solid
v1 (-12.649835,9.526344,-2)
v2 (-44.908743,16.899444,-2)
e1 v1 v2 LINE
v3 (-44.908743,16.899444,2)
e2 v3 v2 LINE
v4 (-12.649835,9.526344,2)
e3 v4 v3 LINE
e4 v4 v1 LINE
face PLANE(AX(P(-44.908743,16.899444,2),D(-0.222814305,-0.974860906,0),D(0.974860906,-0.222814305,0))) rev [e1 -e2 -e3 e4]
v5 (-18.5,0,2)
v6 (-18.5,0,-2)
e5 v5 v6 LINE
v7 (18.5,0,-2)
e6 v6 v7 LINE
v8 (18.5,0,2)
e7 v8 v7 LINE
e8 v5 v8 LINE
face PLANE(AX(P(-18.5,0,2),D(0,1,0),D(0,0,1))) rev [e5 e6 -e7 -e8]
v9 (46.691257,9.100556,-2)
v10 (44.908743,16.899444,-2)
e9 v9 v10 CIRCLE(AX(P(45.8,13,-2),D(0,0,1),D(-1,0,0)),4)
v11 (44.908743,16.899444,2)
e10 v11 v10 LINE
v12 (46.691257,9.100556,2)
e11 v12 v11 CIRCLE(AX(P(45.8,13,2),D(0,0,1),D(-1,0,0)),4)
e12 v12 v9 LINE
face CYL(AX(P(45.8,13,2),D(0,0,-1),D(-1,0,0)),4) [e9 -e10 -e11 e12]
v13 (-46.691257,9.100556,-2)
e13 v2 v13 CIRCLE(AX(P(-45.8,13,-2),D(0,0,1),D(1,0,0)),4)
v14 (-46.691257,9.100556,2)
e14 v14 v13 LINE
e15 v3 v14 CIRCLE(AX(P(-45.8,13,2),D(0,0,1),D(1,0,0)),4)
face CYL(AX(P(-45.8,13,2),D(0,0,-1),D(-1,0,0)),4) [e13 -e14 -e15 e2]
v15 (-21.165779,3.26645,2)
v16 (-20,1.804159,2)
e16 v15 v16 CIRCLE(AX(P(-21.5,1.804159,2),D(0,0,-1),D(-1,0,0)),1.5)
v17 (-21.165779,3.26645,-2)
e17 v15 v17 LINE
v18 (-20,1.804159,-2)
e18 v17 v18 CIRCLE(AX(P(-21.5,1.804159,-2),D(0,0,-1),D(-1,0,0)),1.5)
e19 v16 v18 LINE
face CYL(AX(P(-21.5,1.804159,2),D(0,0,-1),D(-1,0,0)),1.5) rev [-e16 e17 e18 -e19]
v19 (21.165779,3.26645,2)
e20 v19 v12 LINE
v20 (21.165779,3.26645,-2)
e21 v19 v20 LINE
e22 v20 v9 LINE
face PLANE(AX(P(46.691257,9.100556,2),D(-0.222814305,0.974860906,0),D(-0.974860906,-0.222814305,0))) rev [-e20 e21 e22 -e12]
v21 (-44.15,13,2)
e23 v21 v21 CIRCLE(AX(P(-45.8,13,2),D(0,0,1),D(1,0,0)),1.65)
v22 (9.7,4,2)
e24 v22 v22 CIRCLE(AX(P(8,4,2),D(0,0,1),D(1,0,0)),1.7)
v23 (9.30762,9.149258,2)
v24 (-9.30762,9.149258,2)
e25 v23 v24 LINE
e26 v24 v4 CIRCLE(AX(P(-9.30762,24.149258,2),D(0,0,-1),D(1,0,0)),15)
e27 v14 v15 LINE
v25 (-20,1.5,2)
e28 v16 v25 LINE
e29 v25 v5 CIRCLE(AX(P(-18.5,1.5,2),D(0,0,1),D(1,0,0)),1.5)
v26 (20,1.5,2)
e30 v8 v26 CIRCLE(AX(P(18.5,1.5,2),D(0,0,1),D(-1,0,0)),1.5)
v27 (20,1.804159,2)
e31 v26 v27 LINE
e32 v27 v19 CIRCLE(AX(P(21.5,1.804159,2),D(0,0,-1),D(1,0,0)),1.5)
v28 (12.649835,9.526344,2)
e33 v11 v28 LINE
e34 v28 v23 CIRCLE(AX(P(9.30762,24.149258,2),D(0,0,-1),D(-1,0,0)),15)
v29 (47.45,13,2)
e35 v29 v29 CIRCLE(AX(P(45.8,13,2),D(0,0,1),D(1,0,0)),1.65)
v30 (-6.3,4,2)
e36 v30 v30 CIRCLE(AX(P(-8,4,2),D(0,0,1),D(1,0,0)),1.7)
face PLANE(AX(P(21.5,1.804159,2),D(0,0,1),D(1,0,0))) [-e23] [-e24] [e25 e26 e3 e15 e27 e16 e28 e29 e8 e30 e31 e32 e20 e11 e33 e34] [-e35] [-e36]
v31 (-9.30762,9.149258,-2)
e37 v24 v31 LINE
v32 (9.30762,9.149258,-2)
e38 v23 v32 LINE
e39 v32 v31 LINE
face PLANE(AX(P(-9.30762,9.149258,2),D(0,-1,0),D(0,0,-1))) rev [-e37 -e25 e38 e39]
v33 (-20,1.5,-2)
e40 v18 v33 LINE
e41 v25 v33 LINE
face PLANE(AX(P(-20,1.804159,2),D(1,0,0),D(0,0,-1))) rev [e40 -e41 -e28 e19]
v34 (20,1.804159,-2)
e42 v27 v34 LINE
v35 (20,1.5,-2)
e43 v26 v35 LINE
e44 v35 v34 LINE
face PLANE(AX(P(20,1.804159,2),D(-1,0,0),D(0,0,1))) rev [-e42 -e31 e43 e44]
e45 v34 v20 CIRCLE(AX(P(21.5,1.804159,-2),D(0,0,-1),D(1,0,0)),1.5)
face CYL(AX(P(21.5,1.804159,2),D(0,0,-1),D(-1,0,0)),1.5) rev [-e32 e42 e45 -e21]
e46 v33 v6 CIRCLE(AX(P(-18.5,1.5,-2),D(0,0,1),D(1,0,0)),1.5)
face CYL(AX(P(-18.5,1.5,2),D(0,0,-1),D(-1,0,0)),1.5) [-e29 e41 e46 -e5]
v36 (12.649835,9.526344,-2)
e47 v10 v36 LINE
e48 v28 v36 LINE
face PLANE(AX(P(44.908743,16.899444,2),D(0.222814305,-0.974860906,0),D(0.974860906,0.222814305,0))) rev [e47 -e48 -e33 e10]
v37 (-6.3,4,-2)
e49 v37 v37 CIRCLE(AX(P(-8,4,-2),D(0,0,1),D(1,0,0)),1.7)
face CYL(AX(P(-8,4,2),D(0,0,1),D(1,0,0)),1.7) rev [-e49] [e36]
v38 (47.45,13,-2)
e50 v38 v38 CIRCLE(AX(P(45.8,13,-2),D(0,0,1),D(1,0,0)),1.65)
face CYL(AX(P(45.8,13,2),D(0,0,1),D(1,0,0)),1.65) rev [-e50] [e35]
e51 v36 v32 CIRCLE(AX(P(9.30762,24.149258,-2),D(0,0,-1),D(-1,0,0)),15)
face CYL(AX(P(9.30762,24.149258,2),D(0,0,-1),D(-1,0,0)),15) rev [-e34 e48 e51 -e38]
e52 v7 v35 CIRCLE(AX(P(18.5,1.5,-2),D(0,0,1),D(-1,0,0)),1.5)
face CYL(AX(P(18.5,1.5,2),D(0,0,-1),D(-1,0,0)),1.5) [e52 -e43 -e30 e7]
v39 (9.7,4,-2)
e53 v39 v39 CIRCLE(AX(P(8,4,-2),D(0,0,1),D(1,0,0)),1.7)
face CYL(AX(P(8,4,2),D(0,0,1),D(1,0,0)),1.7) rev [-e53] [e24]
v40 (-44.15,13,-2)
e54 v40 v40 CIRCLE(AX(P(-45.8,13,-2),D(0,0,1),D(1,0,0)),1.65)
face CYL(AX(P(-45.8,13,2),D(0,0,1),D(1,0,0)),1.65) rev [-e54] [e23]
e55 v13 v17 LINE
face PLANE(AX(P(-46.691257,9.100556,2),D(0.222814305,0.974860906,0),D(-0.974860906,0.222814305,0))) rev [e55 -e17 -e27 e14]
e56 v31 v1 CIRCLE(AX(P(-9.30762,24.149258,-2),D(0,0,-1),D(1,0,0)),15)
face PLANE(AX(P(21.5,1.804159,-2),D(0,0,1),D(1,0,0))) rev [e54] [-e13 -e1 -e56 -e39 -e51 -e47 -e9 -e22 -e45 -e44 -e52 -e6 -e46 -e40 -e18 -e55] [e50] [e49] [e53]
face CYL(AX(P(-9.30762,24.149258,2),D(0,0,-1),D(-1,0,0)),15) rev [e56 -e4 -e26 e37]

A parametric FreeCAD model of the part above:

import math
import FreeCAD as App
import Part
import Sketcher
Q = App.Units.Quantity

doc = App.newDocument("Part")
body = doc.addObject("PartDesign::Body", "Body")

# Sketch on XY plane
sketch1 = body.newObject("Sketcher::SketchObject", "Sketch")
sketch1.AttachmentSupport = (doc.getObject("XY_Plane"), [""])
sketch1.MapMode = "FlatFace"
sketch1.addGeometry([
    Part.LineSegment(App.Vector(-18.5, 0, 0), App.Vector(18.5, 0, 0)),  # 0
    Part.ArcOfCircle(Part.Circle(App.Vector(18.5, 1.5, 0), App.Vector(0, 0, 1), 1.5), math.radians(-90), math.radians(0)),  # 1
    Part.LineSegment(App.Vector(20, 1.5, 0), App.Vector(20, 1.8, 0)),  # 2
    Part.ArcOfCircle(Part.Circle(App.Vector(21.5, 1.8, 0), App.Vector(0, 0, 1), 1.5), math.radians(103), math.radians(180)),  # 3
    Part.LineSegment(App.Vector(21.17, 3.27, 0), App.Vector(46.69, 9.1, 0)),  # 4
    Part.ArcOfCircle(Part.Circle(App.Vector(45.8, 13, 0), App.Vector(0, 0, 1), 4), math.radians(-77), math.radians(103)),  # 5
    Part.LineSegment(App.Vector(44.91, 16.9, 0), App.Vector(12.65, 9.53, 0)),  # 6
    Part.ArcOfCircle(Part.Circle(App.Vector(9.31, 24.15, 0), App.Vector(0, 0, 1), 15), math.radians(-90), math.radians(-77.13)),  # 7
    Part.LineSegment(App.Vector(9.31, 9.15, 0), App.Vector(-9.31, 9.15, 0)),  # 8
    Part.ArcOfCircle(Part.Circle(App.Vector(-9.31, 24.15, 0), App.Vector(0, 0, 1), 15), math.radians(-102.87), math.radians(-90)),  # 9
    Part.LineSegment(App.Vector(-12.65, 9.53, 0), App.Vector(-44.91, 16.9, 0)),  # 10
    Part.ArcOfCircle(Part.Circle(App.Vector(-45.8, 13, 0), App.Vector(0, 0, 1), 4), math.radians(77), math.radians(257)),  # 11
    Part.LineSegment(App.Vector(-46.69, 9.1, 0), App.Vector(-21.17, 3.27, 0)),  # 12
    Part.ArcOfCircle(Part.Circle(App.Vector(-21.5, 1.8, 0), App.Vector(0, 0, 1), 1.5), math.radians(0), math.radians(77)),  # 13
    Part.LineSegment(App.Vector(-20, 1.8, 0), App.Vector(-20, 1.5, 0)),  # 14
    Part.ArcOfCircle(Part.Circle(App.Vector(-18.5, 1.5, 0), App.Vector(0, 0, 1), 1.5), math.radians(180), math.radians(270)),  # 15
    Part.Circle(App.Vector(-8, 4, 0), App.Vector(0, 0, 1), 0.5),  # 16
    Part.Circle(App.Vector(8, 4, 0), App.Vector(0, 0, 1), 0.5),  # 17
    Part.Circle(App.Vector(-45.8, 13, 0), App.Vector(0, 0, 1), 0.5),  # 18
    Part.Circle(App.Vector(45.8, 13, 0), App.Vector(0, 0, 1), 0.5),  # 19
], False)
sketch1.addConstraint([
    Sketcher.Constraint("Tangent", 0, 2, 1, 1),
    Sketcher.Constraint("Tangent", 1, 2, 2, 1),
    Sketcher.Constraint("Tangent", 2, 2, 3, 2),
    Sketcher.Constraint("Tangent", 3, 1, 4, 1),
    Sketcher.Constraint("Tangent", 4, 2, 5, 1),
    Sketcher.Constraint("Tangent", 5, 2, 6, 1),
    Sketcher.Constraint("Tangent", 6, 2, 7, 2),
    Sketcher.Constraint("Tangent", 7, 1, 8, 1),
    Sketcher.Constraint("Tangent", 8, 2, 9, 2),
    Sketcher.Constraint("Tangent", 9, 1, 10, 1),
    Sketcher.Constraint("Tangent", 10, 2, 11, 1),
    Sketcher.Constraint("Tangent", 11, 2, 12, 1),
    Sketcher.Constraint("Tangent", 12, 2, 13, 2),
    Sketcher.Constraint("Tangent", 13, 1, 14, 1),
    Sketcher.Constraint("Tangent", 14, 2, 15, 1),
    Sketcher.Constraint("Tangent", 15, 2, 0, 1),
    Sketcher.Constraint("Horizontal", 0),
    Sketcher.Constraint("Vertical", 2),
    Sketcher.Constraint("Horizontal", 8),
    Sketcher.Constraint("Vertical", 14),
    Sketcher.Constraint("Coincident", 18, 3, 11, 3),
    Sketcher.Constraint("Coincident", 19, 3, 5, 3),
    Sketcher.Constraint("Equal", 1, 3),
    Sketcher.Constraint("Equal", 7, 9),
    Sketcher.Constraint("Equal", 5, 11),
    Sketcher.Constraint("Equal", 3, 13),
    Sketcher.Constraint("Equal", 13, 15),
    Sketcher.Constraint("Equal", 16, 17),
    Sketcher.Constraint("Equal", 17, 18),
    Sketcher.Constraint("Equal", 18, 19),
    Sketcher.Constraint("Symmetric", 0, 2, 15, 2, -1, 1),
    Sketcher.Constraint("Symmetric", 5, 3, 11, 3, -2),
    Sketcher.Constraint("Symmetric", 16, 3, 17, 3, -2),
    Sketcher.Constraint("Parallel", 4, 6),
    Sketcher.Constraint("Parallel", 10, 12),
    Sketcher.Constraint("Horizontal", 3, 3, 13, 3),
    Sketcher.Constraint("Diameter", 16, Q("1 mm")),
    Sketcher.Constraint("Radius", 5, Q("4 mm")),
    Sketcher.Constraint("Radius", 7, Q("15 mm")),
    Sketcher.Constraint("Radius", 1, Q("1.5 mm")),
    Sketcher.Constraint("DistanceX", 0, 1, 0, 2, Q("37 mm")),
    Sketcher.Constraint("DistanceY", -1, 1, 5, 3, Q("13 mm")),
    Sketcher.Constraint("DistanceX", 16, 3, -1, 1, Q("8 mm")),
    Sketcher.Constraint("DistanceY", -1, 1, 16, 3, Q("4 mm")),
    Sketcher.Constraint("DistanceX", -1, 1, 5, 3, Q("45.8 mm")),
    Sketcher.Constraint("DistanceX", 8, 2, 8, 1, Q("18.615241 mm")),
    Sketcher.Constraint("DistanceY", 2, 1, 2, 2, Q("0.304159 mm")),
])
pad1 = body.newObject("PartDesign::Pad", "Pad")
pad1.Profile = sketch1
pad1.Length = 4
pad1.Midplane = True

# Sketch on XY plane
sketch2 = body.newObject("Sketcher::SketchObject", "Sketch001")
sketch2.AttachmentSupport = (doc.getObject("XY_Plane"), [""])
sketch2.MapMode = "FlatFace"
sketch2.AttachmentOffset = App.Placement(App.Vector(0, 0, 2), App.Rotation())
sketch2.addGeometry([
    Part.Circle(App.Vector(-8, 4, 0), App.Vector(0, 0, 1), 1.7),
    Part.Circle(App.Vector(8, 4, 0), App.Vector(0, 0, 1), 1.7),
], False)
sketch2.addConstraint([
    Sketcher.Constraint("Equal", 0, 1),
    Sketcher.Constraint("Symmetric", 0, 3, 1, 3, -2),
    Sketcher.Constraint("Diameter", 0, Q("3.4 mm")),
    Sketcher.Constraint("DistanceX", 0, 3, -1, 1, Q("8 mm")),
    Sketcher.Constraint("DistanceY", -1, 1, 0, 3, Q("4 mm")),
])
doc.recompute()
hole = body.newObject("PartDesign::Hole", "Hole")
hole.Profile = sketch2
hole.ThreadType = "None"
hole.Diameter = 3.4
hole.DepthType = "ThroughAll"

# Sketch on XY plane
sketch3 = body.newObject("Sketcher::SketchObject", "Sketch002")
sketch3.AttachmentSupport = (doc.getObject("XY_Plane"), [""])
sketch3.MapMode = "FlatFace"
sketch3.AttachmentOffset = App.Placement(App.Vector(0, 0, 2), App.Rotation())
sketch3.addGeometry([
    Part.Circle(App.Vector(45.8, 13, 0), App.Vector(0, 0, 1), 1.6),
    Part.Circle(App.Vector(-45.8, 13, 0), App.Vector(0, 0, 1), 1.6),
], False)
sketch3.addConstraint([
    Sketcher.Constraint("Equal", 0, 1),
    Sketcher.Constraint("Symmetric", 0, 3, 1, 3, -2),
    Sketcher.Constraint("Diameter", 0, Q("3.3 mm")),
    Sketcher.Constraint("DistanceY", -1, 1, 0, 3, Q("13 mm")),
    Sketcher.Constraint("DistanceX", -1, 1, 0, 3, Q("45.8 mm")),
])
doc.recompute()
hole2 = body.newObject("PartDesign::Hole", "Hole001")
hole2.Profile = sketch3
hole2.ThreadType = "None"
hole2.Diameter = 3.3
hole2.DepthType = "ThroughAll"

doc.recompute()
